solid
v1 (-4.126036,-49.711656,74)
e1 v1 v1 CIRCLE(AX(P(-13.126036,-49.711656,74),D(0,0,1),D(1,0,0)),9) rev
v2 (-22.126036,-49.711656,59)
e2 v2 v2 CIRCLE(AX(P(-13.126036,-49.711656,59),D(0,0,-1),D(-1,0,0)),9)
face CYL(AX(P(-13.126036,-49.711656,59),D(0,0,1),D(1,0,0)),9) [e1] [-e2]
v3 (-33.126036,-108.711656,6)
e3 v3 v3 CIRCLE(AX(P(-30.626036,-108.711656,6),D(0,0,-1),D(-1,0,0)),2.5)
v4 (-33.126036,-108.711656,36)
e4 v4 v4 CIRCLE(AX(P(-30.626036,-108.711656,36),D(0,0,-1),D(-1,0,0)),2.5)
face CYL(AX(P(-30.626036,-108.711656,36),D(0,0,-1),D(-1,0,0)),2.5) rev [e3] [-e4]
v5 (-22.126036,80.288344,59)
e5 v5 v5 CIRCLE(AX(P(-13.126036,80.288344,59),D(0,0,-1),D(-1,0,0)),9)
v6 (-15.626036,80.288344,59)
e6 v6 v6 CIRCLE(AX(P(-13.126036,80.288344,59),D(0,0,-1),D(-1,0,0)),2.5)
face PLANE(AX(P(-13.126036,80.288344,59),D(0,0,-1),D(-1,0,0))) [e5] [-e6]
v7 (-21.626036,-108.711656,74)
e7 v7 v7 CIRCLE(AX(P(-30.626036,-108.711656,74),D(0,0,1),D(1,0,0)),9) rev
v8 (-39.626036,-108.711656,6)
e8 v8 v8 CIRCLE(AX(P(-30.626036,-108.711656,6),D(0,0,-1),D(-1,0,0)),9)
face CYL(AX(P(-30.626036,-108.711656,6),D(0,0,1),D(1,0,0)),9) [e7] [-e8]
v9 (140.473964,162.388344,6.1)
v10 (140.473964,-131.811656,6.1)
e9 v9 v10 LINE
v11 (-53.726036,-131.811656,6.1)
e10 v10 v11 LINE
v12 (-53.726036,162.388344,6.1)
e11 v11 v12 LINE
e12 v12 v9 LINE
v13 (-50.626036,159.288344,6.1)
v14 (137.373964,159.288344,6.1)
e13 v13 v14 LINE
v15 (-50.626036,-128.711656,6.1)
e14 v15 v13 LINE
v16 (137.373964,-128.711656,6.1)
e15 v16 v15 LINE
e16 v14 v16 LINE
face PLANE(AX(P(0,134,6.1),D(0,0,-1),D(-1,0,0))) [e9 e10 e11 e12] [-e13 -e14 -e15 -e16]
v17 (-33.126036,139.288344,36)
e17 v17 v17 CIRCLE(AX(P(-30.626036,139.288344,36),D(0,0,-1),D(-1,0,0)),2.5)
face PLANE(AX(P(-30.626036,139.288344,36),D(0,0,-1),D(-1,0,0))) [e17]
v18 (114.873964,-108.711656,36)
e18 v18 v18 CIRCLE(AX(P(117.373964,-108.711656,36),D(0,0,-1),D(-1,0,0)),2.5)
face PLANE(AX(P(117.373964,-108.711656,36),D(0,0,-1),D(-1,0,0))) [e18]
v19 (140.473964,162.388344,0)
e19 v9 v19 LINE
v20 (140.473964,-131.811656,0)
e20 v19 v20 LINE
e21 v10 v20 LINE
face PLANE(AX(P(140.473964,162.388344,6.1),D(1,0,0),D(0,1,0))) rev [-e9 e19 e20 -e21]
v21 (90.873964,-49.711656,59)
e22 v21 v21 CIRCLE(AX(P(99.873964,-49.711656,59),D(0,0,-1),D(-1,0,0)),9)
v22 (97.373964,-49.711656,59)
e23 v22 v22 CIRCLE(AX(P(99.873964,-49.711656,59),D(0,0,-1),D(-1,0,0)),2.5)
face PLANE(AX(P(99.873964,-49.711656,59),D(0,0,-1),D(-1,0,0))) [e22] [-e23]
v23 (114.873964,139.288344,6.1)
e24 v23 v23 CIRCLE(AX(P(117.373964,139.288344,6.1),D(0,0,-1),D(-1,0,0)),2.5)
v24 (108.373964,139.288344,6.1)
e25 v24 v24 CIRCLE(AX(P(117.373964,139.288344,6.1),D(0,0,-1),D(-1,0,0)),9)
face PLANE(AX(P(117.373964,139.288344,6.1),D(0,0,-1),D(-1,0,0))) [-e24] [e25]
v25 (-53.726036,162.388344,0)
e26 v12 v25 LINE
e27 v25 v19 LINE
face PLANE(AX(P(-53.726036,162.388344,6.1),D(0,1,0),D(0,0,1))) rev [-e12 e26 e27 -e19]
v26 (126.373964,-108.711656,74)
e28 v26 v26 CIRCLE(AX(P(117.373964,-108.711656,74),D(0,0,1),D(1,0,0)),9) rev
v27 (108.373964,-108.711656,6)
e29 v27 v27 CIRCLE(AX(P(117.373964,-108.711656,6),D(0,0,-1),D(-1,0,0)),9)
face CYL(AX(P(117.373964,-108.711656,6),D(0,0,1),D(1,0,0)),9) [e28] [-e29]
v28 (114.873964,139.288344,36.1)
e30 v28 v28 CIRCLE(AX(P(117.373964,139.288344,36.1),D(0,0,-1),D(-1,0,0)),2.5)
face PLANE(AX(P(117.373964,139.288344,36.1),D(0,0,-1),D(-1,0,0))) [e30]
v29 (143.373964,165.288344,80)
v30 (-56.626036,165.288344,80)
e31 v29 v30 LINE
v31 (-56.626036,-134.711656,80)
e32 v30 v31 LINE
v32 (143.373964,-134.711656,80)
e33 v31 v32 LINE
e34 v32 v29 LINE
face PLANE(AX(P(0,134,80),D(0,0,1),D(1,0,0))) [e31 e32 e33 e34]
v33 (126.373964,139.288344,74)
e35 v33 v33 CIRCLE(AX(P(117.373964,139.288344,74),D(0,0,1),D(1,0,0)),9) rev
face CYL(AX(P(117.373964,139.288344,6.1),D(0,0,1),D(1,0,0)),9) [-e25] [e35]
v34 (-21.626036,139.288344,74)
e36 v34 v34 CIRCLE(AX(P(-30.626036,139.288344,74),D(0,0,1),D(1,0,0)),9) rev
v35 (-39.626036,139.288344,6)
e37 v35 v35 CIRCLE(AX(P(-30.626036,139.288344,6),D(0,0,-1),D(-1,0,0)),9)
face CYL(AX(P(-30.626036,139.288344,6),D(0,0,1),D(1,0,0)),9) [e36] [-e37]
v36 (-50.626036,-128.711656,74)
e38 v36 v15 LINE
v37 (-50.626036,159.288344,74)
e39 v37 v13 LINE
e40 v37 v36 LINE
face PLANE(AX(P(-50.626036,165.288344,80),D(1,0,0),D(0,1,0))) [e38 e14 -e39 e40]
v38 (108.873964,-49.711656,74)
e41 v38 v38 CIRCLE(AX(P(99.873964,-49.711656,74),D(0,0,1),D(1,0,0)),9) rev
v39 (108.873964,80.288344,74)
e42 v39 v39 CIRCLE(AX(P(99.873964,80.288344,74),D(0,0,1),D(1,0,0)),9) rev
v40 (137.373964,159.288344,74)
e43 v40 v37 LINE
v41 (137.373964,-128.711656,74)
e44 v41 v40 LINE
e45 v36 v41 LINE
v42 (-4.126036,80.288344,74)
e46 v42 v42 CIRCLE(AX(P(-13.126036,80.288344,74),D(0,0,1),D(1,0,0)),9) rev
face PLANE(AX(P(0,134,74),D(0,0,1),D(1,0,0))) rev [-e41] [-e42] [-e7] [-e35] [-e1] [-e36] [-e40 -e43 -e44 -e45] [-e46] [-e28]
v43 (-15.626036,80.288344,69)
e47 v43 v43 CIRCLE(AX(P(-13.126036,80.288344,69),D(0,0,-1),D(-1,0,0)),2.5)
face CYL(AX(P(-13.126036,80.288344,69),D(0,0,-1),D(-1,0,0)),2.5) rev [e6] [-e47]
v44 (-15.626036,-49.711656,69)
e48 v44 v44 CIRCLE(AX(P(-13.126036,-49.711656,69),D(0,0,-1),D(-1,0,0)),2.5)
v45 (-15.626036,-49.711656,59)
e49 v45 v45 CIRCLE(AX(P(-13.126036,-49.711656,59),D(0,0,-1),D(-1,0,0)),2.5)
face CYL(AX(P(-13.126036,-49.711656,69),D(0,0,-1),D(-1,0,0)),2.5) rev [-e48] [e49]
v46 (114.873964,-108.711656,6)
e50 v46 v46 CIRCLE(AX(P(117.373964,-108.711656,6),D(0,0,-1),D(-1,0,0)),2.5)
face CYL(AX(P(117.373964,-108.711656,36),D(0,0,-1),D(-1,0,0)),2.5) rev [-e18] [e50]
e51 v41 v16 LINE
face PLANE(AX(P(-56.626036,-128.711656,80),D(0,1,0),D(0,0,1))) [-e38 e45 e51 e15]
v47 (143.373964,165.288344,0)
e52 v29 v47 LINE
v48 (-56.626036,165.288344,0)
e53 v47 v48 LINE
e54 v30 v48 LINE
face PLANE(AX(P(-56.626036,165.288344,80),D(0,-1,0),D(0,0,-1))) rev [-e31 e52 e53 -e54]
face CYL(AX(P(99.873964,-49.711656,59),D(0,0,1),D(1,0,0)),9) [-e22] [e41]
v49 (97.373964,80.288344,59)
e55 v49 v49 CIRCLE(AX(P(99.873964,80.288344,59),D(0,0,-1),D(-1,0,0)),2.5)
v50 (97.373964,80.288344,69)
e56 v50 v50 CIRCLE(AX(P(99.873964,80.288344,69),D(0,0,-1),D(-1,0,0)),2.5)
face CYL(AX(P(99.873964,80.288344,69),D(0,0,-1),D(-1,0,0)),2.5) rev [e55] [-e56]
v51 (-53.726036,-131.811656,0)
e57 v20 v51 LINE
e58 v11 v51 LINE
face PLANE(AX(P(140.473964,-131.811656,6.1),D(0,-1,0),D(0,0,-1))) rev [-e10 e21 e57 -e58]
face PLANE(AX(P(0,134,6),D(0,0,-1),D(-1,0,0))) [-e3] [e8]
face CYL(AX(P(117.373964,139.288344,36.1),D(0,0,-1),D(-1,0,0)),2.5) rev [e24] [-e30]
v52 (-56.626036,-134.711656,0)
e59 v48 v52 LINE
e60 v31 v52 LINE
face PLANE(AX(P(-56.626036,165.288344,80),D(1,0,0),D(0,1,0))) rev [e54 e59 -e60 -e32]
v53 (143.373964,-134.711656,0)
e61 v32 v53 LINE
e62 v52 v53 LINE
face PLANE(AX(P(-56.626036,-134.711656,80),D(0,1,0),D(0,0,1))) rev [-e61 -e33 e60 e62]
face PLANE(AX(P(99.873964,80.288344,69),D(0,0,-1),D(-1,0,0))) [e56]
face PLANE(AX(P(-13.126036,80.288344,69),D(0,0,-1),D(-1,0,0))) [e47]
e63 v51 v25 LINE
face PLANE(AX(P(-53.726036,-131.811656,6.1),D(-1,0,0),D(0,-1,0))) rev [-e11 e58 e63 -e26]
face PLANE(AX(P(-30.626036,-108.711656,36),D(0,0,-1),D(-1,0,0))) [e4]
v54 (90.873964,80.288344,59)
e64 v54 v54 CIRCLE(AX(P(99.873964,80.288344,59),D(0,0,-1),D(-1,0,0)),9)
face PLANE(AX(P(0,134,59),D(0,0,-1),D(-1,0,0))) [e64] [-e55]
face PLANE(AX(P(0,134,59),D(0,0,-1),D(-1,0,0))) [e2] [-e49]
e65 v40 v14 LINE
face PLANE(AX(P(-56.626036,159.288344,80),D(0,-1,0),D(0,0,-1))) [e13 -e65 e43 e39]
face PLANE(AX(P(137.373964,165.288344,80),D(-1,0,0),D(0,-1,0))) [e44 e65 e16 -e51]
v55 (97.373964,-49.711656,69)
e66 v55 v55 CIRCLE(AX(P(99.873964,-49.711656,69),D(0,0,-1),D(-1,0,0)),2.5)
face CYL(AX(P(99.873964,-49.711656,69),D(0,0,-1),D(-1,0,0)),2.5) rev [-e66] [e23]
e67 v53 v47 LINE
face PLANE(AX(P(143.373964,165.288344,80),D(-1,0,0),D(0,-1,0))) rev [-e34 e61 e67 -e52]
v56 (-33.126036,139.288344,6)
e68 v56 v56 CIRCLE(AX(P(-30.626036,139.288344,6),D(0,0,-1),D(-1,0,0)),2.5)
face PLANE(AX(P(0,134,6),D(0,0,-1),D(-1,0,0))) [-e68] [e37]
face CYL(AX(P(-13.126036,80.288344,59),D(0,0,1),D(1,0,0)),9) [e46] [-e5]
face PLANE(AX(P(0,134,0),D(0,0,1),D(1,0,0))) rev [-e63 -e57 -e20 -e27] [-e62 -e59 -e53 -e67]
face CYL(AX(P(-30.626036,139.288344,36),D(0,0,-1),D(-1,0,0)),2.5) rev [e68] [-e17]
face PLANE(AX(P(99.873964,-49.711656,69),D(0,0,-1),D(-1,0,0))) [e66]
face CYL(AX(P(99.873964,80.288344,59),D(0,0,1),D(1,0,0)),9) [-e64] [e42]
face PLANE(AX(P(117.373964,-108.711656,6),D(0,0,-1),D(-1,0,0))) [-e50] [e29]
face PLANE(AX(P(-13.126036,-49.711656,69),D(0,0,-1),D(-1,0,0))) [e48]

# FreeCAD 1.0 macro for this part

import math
import FreeCAD as App
import Part
import Sketcher
from FreeCAD import Vector


def faces_at(feature, points):
    """Names of the faces that lie closest to the given points."""
    faces = feature.Shape.Faces
    near = lambda p: min(range(len(faces)), key=lambda i: faces[i].distToShape(Part.Vertex(*p))[0])
    return sorted({f"Face{near(p) + 1}" for p in points})

doc = App.newDocument("Part")
body = doc.addObject("PartDesign::Body", "Body")

# Sketch on XY plane
sketch1 = doc.addObject("Sketcher::SketchObject", "Sketch")
body.addObject(sketch1)
sketch1.AttachmentSupport = (doc.XY_Plane, [""])
sketch1.MapMode = "FlatFace"
sketch1.addGeometry(Part.LineSegment(Vector(-57, 31, 0), Vector(-57, -269, 0)), False)
sketch1.addGeometry(Part.LineSegment(Vector(-57, -269, 0), Vector(143, -269, 0)), False)
sketch1.addGeometry(Part.LineSegment(Vector(143, -269, 0), Vector(143, 31, 0)), False)
sketch1.addGeometry(Part.LineSegment(Vector(143, 31, 0), Vector(-57, 31, 0)), False)
sketch1.addConstraint(Sketcher.Constraint("Coincident", 0, 2, 1, 1))
sketch1.addConstraint(Sketcher.Constraint("Coincident", 1, 2, 2, 1))
sketch1.addConstraint(Sketcher.Constraint("Coincident", 2, 2, 3, 1))
sketch1.addConstraint(Sketcher.Constraint("Coincident", 3, 2, 0, 1))
sketch1.addConstraint(Sketcher.Constraint("Vertical", 0))
sketch1.addConstraint(Sketcher.Constraint("Horizontal", 1))
sketch1.addConstraint(Sketcher.Constraint("Vertical", 2))
sketch1.addConstraint(Sketcher.Constraint("Horizontal", 3))
sketch1.addConstraint(Sketcher.Constraint("DistanceX", 1, 1, 1, 2, 200.0))
sketch1.addConstraint(Sketcher.Constraint("DistanceY", 0, 2, 0, 1, 300.0))
sketch1.addConstraint(Sketcher.Constraint("DistanceX", 0, 2, -1, 1, 56.626036))
sketch1.addConstraint(Sketcher.Constraint("DistanceY", 0, 2, -1, 1, 268.711656))
pad1 = doc.addObject("PartDesign::Pad", "Pad")
body.addObject(pad1)
pad1.Profile = sketch1
pad1.Length = 80
doc.recompute()

thickness = doc.addObject("PartDesign::Thickness", "Thickness")
body.addObject(thickness)
thickness.Base = (pad1, faces_at(pad1, [(43.374, -118.712, 0)]))
thickness.Value = 6
thickness.Reversed = True
thickness.Join = "Intersection"

# Sketch on XY plane
sketch2 = doc.addObject("Sketcher::SketchObject", "Sketch001")
body.addObject(sketch2)
sketch2.AttachmentSupport = (doc.XY_Plane, [""])
sketch2.MapMode = "FlatFace"
sketch2.addGeometry(Part.LineSegment(Vector(140, 28, 0), Vector(140, -266, 0)), False)
sketch2.addGeometry(Part.LineSegment(Vector(140, -266, 0), Vector(-54, -266, 0)), False)
sketch2.addGeometry(Part.LineSegment(Vector(-54, -266, 0), Vector(-54, 28, 0)), False)
sketch2.addGeometry(Part.LineSegment(Vector(-54, 28, 0), Vector(140, 28, 0)), False)
sketch2.addConstraint(Sketcher.Constraint("Coincident", 0, 2, 1, 1))
sketch2.addConstraint(Sketcher.Constraint("Coincident", 1, 2, 2, 1))
sketch2.addConstraint(Sketcher.Constraint("Coincident", 2, 2, 3, 1))
sketch2.addConstraint(Sketcher.Constraint("Coincident", 3, 2, 0, 1))
sketch2.addConstraint(Sketcher.Constraint("Vertical", 0))
sketch2.addConstraint(Sketcher.Constraint("Horizontal", 1))
sketch2.addConstraint(Sketcher.Constraint("Vertical", 2))
sketch2.addConstraint(Sketcher.Constraint("Horizontal", 3))
sketch2.addConstraint(Sketcher.Constraint("DistanceX", 1, 2, 1, 1, 194.2))
sketch2.addConstraint(Sketcher.Constraint("DistanceY", 0, 2, 0, 1, 294.2))
sketch2.addConstraint(Sketcher.Constraint("DistanceX", -1, 1, 0, 2, 140.473964))
sketch2.addConstraint(Sketcher.Constraint("DistanceY", 0, 2, -1, 1, 265.811656))
pocket1 = doc.addObject("PartDesign::Pocket", "Pocket")
body.addObject(pocket1)
pocket1.Profile = sketch2
pocket1.Length = 6.1
pocket1.Reversed = True

# Sketch on XY plane
sketch3 = doc.addObject("Sketcher::SketchObject", "Sketch002")
body.addObject(sketch3)
sketch3.AttachmentSupport = (doc.XY_Plane, [""])
sketch3.MapMode = "FlatFace"
sketch3.AttachmentOffset = App.Placement(Vector(0, 0, 74), App.Rotation())
sketch3.addGeometry(Part.Circle(Vector(117, 5, 0), Vector(0, 0, 1), 9), False)
sketch3.addConstraint(Sketcher.Constraint("Diameter", 0, 18.0))
sketch3.addConstraint(Sketcher.Constraint("DistanceX", -1, 1, 0, 3, 117.373964))
sketch3.addConstraint(Sketcher.Constraint("DistanceY", -1, 1, 0, 3, 5.288344))
pad2 = doc.addObject("PartDesign::Pad", "Pad001")
body.addObject(pad2)
pad2.Profile = sketch3
pad2.Length = 67.9
pad2.Reversed = True

# Sketch on XY plane
sketch4 = doc.addObject("Sketcher::SketchObject", "Sketch003")
body.addObject(sketch4)
sketch4.AttachmentSupport = (doc.XY_Plane, [""])
sketch4.MapMode = "FlatFace"
sketch4.AttachmentOffset = App.Placement(Vector(0, 0, 6.1), App.Rotation())
sketch4.addGeometry(Part.Circle(Vector(117.4, 5.3, 0), Vector(0, 0, 1), 2.5), False)
sketch4.addConstraint(Sketcher.Constraint("Diameter", 0, 5.0))
sketch4.addConstraint(Sketcher.Constraint("DistanceX", -1, 1, 0, 3, 117.373964))
sketch4.addConstraint(Sketcher.Constraint("DistanceY", -1, 1, 0, 3, 5.288344))
pocket2 = doc.addObject("PartDesign::Pocket", "Pocket001")
body.addObject(pocket2)
pocket2.Profile = sketch4
pocket2.Length = 30
pocket2.Reversed = True

# Sketch on XY plane
sketch5 = doc.addObject("Sketcher::SketchObject", "Sketch004")
body.addObject(sketch5)
sketch5.AttachmentSupport = (doc.XY_Plane, [""])
sketch5.MapMode = "FlatFace"
sketch5.AttachmentOffset = App.Placement(Vector(0, 0, 74), App.Rotation())
sketch5.addGeometry(Part.ArcOfCircle(Part.Circle(Vector(100, -54, 0), Vector(0, 0, 1), 9), math.radians(180), math.radians(360)), False)
sketch5.addGeometry(Part.ArcOfCircle(Part.Circle(Vector(100, -54, 0), Vector(0, 0, 1), 9), math.radians(90), math.radians(180)), False)
sketch5.addGeometry(Part.ArcOfCircle(Part.Circle(Vector(100, -54, 0), Vector(0, 0, 1), 9), math.radians(0), math.radians(90)), False)
sketch5.addGeometry(Part.ArcOfCircle(Part.Circle(Vector(-13, -184, 0), Vector(0, 0, 1), 9), math.radians(-90), math.radians(180)), False)
sketch5.addGeometry(Part.ArcOfCircle(Part.Circle(Vector(-13, -184, 0), Vector(0, 0, 1), 9), math.radians(-180), math.radians(-90)), False)
sketch5.addGeometry(Part.Circle(Vector(-13, -54, 0), Vector(0, 0, 1), 9), False)
sketch5.addGeometry(Part.Circle(Vector(100, -184, 0), Vector(0, 0, 1), 9), False)
sketch5.addConstraint(Sketcher.Constraint("Tangent", 0, 1, 1, 2))
sketch5.addConstraint(Sketcher.Constraint("Tangent", 1, 1, 2, 2))
sketch5.addConstraint(Sketcher.Constraint("Tangent", 2, 1, 0, 2))
sketch5.addConstraint(Sketcher.Constraint("Tangent", 3, 1, 4, 2))
sketch5.addConstraint(Sketcher.Constraint("Coincident", 4, 1, 3, 2))
sketch5.addConstraint(Sketcher.Constraint("Equal", 2, 3))
sketch5.addConstraint(Sketcher.Constraint("Equal", 4, 5))
sketch5.addConstraint(Sketcher.Constraint("Equal", 5, 6))
sketch5.addConstraint(Sketcher.Constraint("Horizontal", 2, 3, 5, 3))
sketch5.addConstraint(Sketcher.Constraint("Horizontal", 4, 3, 6, 3))
sketch5.addConstraint(Sketcher.Constraint("Horizontal", 5, 3, 0, 1))
sketch5.addConstraint(Sketcher.Constraint("Horizontal", 0, 1, 2, 1))
sketch5.addConstraint(Sketcher.Constraint("Horizontal", 6, 3, 4, 1))
sketch5.addConstraint(Sketcher.Constraint("Vertical", 4, 3, 5, 3))
sketch5.addConstraint(Sketcher.Constraint("Vertical", 2, 3, 6, 3))
sketch5.addConstraint(Sketcher.Constraint("Vertical", 6, 3, 1, 1))
sketch5.addConstraint(Sketcher.Constraint("Vertical", 5, 3, 3, 1))
sketch5.addConstraint(Sketcher.Constraint("Diameter", 5, 18.0))
sketch5.addConstraint(Sketcher.Constraint("DistanceX", 3, 3, 1, 3, 113.0))
sketch5.addConstraint(Sketcher.Constraint("DistanceY", 3, 3, 1, 3, 130.0))
sketch5.addConstraint(Sketcher.Constraint("DistanceX", -1, 1, 0, 3, 99.873964))
sketch5.addConstraint(Sketcher.Constraint("DistanceY", 0, 3, -1, 1, 53.711656))
pad3 = doc.addObject("PartDesign::Pad", "Pad002")
body.addObject(pad3)
pad3.Profile = sketch5
pad3.Length = 15
pad3.Reversed = True

# Sketch on XY plane
sketch6 = doc.addObject("Sketcher::SketchObject", "Sketch005")
body.addObject(sketch6)
sketch6.AttachmentSupport = (doc.XY_Plane, [""])
sketch6.MapMode = "FlatFace"
sketch6.AttachmentOffset = App.Placement(Vector(0, 0, 59), App.Rotation())
sketch6.addGeometry(Part.Circle(Vector(99.9, -53.7, 0), Vector(0, 0, 1), 2.5), False)
sketch6.addGeometry(Part.Circle(Vector(-13.1, -53.7, 0), Vector(0, 0, 1), 2.5), False)
sketch6.addGeometry(Part.Circle(Vector(99.9, -183.7, 0), Vector(0, 0, 1), 2.5), False)
sketch6.addGeometry(Part.Circle(Vector(-13.1, -183.7, 0), Vector(0, 0, 1), 2.5), False)
sketch6.addConstraint(Sketcher.Constraint("Equal", 0, 1))
sketch6.addConstraint(Sketcher.Constraint("Equal", 1, 2))
sketch6.addConstraint(Sketcher.Constraint("Equal", 2, 3))
sketch6.addConstraint(Sketcher.Constraint("Horizontal", 0, 3, 1, 3))
sketch6.addConstraint(Sketcher.Constraint("Horizontal", 2, 3, 3, 3))
sketch6.addConstraint(Sketcher.Constraint("Vertical", 0, 3, 2, 3))
sketch6.addConstraint(Sketcher.Constraint("Vertical", 1, 3, 3, 3))
sketch6.addConstraint(Sketcher.Constraint("Diameter", 0, 5.0))
sketch6.addConstraint(Sketcher.Constraint("DistanceX", 1, 3, 0, 3, 113.0))
sketch6.addConstraint(Sketcher.Constraint("DistanceY", 2, 3, 0, 3, 130.0))
sketch6.addConstraint(Sketcher.Constraint("DistanceX", -1, 1, 0, 3, 99.873964))
sketch6.addConstraint(Sketcher.Constraint("DistanceY", 0, 3, -1, 1, 53.711656))
pocket3 = doc.addObject("PartDesign::Pocket", "Pocket002")
body.addObject(pocket3)
pocket3.Profile = sketch6
pocket3.Length = 10
pocket3.Reversed = True

# Sketch on XY plane
sketch7 = doc.addObject("Sketcher::SketchObject", "Sketch006")
body.addObject(sketch7)
sketch7.AttachmentSupport = (doc.XY_Plane, [""])
sketch7.MapMode = "FlatFace"
sketch7.AttachmentOffset = App.Placement(Vector(0, 0, 74), App.Rotation())
sketch7.addGeometry(Part.ArcOfCircle(Part.Circle(Vector(-31, 5, 0), Vector(0, 0, 1), 9), math.radians(90), math.radians(180)), False)
sketch7.addGeometry(Part.ArcOfCircle(Part.Circle(Vector(-31, 5, 0), Vector(0, 0, 1), 9), math.radians(180), math.radians(450)), False)
sketch7.addGeometry(Part.ArcOfCircle(Part.Circle(Vector(-31, -243, 0), Vector(0, 0, 1), 9), math.radians(-90), math.radians(180)), False)
sketch7.addGeometry(Part.ArcOfCircle(Part.Circle(Vector(-31, -243, 0), Vector(0, 0, 1), 9), math.radians(-180), math.radians(-90)), False)
sketch7.addGeometry(Part.Circle(Vector(117, -243, 0), Vector(0, 0, 1), 9), False)
sketch7.addConstraint(Sketcher.Constraint("Tangent", 0, 1, 1, 2))
sketch7.addConstraint(Sketcher.Constraint("Coincident", 1, 1, 0, 2))
sketch7.addConstraint(Sketcher.Constraint("Tangent", 2, 1, 3, 2))
sketch7.addConstraint(Sketcher.Constraint("Coincident", 3, 1, 2, 2))
sketch7.addConstraint(Sketcher.Constraint("Equal", 1, 2))
sketch7.addConstraint(Sketcher.Constraint("Equal", 3, 4))
sketch7.addConstraint(Sketcher.Constraint("Horizontal", 3, 3, 4, 3))
sketch7.addConstraint(Sketcher.Constraint("Horizontal", 0, 3, 1, 1))
sketch7.addConstraint(Sketcher.Constraint("Horizontal", 4, 3, 3, 1))
sketch7.addConstraint(Sketcher.Constraint("Vertical", 1, 3, 2, 3))
sketch7.addConstraint(Sketcher.Constraint("Vertical", 3, 3, 0, 1))
sketch7.addConstraint(Sketcher.Constraint("Vertical", 0, 1, 2, 1))
sketch7.addConstraint(Sketcher.Constraint("Diameter", 4, 18.0))
sketch7.addConstraint(Sketcher.Constraint("DistanceY", 2, 3, 0, 3, 248.0))
sketch7.addConstraint(Sketcher.Constraint("DistanceX", 3, 3, 4, 3, 148.0))
sketch7.addConstraint(Sketcher.Constraint("DistanceX", 0, 3, -1, 1, 30.626036))
sketch7.addConstraint(Sketcher.Constraint("DistanceY", -1, 1, 0, 3, 5.288344))
pad4 = doc.addObject("PartDesign::Pad", "Pad003")
body.addObject(pad4)
pad4.Profile = sketch7
pad4.Length = 68
pad4.Reversed = True

# Sketch on XY plane
sketch8 = doc.addObject("Sketcher::SketchObject", "Sketch007")
body.addObject(sketch8)
sketch8.AttachmentSupport = (doc.XY_Plane, [""])
sketch8.MapMode = "FlatFace"
sketch8.AttachmentOffset = App.Placement(Vector(0, 0, 6), App.Rotation())
sketch8.addGeometry(Part.Circle(Vector(-30.6, 5.3, 0), Vector(0, 0, 1), 2.5), False)
sketch8.addGeometry(Part.Circle(Vector(-30.6, -242.7, 0), Vector(0, 0, 1), 2.5), False)
sketch8.addGeometry(Part.Circle(Vector(117.4, -242.7, 0), Vector(0, 0, 1), 2.5), False)
sketch8.addConstraint(Sketcher.Constraint("Equal", 0, 1))
sketch8.addConstraint(Sketcher.Constraint("Equal", 1, 2))
sketch8.addConstraint(Sketcher.Constraint("Horizontal", 1, 3, 2, 3))
sketch8.addConstraint(Sketcher.Constraint("Vertical", 0, 3, 1, 3))
sketch8.addConstraint(Sketcher.Constraint("Diameter", 0, 5.0))
sketch8.addConstraint(Sketcher.Constraint("DistanceY", 1, 3, 0, 3, 248.0))
sketch8.addConstraint(Sketcher.Constraint("DistanceX", 1, 3, 2, 3, 148.0))
sketch8.addConstraint(Sketcher.Constraint("DistanceX", 0, 3, -1, 1, 30.626036))
sketch8.addConstraint(Sketcher.Constraint("DistanceY", -1, 1, 0, 3, 5.288344))
pocket4 = doc.addObject("PartDesign::Pocket", "Pocket003")
body.addObject(pocket4)
pocket4.Profile = sketch8
pocket4.Length = 30
pocket4.Reversed = True
body2 = doc.addObject("PartDesign::Body", "Body001")
doc.recompute()

body.Placement = App.Placement(Vector(0, 114, 0), App.Rotation(Vector(0, 0, 1), 0))
boolean = doc.addObject("PartDesign::Boolean", "Boolean")
body2.addObject(boolean)
boolean.Type = "Fuse"
boolean.addObjects([body])
body3 = doc.addObject("PartDesign::Body", "Body002")
doc.recompute()

body2.Placement = App.Placement(Vector(0, 20, 0), App.Rotation(Vector(0, 0, 1), 0))
boolean2 = doc.addObject("PartDesign::Boolean", "Boolean001")
body3.addObject(boolean2)
boolean2.Type = "Fuse"
boolean2.addObjects([body2])

doc.recompute()
